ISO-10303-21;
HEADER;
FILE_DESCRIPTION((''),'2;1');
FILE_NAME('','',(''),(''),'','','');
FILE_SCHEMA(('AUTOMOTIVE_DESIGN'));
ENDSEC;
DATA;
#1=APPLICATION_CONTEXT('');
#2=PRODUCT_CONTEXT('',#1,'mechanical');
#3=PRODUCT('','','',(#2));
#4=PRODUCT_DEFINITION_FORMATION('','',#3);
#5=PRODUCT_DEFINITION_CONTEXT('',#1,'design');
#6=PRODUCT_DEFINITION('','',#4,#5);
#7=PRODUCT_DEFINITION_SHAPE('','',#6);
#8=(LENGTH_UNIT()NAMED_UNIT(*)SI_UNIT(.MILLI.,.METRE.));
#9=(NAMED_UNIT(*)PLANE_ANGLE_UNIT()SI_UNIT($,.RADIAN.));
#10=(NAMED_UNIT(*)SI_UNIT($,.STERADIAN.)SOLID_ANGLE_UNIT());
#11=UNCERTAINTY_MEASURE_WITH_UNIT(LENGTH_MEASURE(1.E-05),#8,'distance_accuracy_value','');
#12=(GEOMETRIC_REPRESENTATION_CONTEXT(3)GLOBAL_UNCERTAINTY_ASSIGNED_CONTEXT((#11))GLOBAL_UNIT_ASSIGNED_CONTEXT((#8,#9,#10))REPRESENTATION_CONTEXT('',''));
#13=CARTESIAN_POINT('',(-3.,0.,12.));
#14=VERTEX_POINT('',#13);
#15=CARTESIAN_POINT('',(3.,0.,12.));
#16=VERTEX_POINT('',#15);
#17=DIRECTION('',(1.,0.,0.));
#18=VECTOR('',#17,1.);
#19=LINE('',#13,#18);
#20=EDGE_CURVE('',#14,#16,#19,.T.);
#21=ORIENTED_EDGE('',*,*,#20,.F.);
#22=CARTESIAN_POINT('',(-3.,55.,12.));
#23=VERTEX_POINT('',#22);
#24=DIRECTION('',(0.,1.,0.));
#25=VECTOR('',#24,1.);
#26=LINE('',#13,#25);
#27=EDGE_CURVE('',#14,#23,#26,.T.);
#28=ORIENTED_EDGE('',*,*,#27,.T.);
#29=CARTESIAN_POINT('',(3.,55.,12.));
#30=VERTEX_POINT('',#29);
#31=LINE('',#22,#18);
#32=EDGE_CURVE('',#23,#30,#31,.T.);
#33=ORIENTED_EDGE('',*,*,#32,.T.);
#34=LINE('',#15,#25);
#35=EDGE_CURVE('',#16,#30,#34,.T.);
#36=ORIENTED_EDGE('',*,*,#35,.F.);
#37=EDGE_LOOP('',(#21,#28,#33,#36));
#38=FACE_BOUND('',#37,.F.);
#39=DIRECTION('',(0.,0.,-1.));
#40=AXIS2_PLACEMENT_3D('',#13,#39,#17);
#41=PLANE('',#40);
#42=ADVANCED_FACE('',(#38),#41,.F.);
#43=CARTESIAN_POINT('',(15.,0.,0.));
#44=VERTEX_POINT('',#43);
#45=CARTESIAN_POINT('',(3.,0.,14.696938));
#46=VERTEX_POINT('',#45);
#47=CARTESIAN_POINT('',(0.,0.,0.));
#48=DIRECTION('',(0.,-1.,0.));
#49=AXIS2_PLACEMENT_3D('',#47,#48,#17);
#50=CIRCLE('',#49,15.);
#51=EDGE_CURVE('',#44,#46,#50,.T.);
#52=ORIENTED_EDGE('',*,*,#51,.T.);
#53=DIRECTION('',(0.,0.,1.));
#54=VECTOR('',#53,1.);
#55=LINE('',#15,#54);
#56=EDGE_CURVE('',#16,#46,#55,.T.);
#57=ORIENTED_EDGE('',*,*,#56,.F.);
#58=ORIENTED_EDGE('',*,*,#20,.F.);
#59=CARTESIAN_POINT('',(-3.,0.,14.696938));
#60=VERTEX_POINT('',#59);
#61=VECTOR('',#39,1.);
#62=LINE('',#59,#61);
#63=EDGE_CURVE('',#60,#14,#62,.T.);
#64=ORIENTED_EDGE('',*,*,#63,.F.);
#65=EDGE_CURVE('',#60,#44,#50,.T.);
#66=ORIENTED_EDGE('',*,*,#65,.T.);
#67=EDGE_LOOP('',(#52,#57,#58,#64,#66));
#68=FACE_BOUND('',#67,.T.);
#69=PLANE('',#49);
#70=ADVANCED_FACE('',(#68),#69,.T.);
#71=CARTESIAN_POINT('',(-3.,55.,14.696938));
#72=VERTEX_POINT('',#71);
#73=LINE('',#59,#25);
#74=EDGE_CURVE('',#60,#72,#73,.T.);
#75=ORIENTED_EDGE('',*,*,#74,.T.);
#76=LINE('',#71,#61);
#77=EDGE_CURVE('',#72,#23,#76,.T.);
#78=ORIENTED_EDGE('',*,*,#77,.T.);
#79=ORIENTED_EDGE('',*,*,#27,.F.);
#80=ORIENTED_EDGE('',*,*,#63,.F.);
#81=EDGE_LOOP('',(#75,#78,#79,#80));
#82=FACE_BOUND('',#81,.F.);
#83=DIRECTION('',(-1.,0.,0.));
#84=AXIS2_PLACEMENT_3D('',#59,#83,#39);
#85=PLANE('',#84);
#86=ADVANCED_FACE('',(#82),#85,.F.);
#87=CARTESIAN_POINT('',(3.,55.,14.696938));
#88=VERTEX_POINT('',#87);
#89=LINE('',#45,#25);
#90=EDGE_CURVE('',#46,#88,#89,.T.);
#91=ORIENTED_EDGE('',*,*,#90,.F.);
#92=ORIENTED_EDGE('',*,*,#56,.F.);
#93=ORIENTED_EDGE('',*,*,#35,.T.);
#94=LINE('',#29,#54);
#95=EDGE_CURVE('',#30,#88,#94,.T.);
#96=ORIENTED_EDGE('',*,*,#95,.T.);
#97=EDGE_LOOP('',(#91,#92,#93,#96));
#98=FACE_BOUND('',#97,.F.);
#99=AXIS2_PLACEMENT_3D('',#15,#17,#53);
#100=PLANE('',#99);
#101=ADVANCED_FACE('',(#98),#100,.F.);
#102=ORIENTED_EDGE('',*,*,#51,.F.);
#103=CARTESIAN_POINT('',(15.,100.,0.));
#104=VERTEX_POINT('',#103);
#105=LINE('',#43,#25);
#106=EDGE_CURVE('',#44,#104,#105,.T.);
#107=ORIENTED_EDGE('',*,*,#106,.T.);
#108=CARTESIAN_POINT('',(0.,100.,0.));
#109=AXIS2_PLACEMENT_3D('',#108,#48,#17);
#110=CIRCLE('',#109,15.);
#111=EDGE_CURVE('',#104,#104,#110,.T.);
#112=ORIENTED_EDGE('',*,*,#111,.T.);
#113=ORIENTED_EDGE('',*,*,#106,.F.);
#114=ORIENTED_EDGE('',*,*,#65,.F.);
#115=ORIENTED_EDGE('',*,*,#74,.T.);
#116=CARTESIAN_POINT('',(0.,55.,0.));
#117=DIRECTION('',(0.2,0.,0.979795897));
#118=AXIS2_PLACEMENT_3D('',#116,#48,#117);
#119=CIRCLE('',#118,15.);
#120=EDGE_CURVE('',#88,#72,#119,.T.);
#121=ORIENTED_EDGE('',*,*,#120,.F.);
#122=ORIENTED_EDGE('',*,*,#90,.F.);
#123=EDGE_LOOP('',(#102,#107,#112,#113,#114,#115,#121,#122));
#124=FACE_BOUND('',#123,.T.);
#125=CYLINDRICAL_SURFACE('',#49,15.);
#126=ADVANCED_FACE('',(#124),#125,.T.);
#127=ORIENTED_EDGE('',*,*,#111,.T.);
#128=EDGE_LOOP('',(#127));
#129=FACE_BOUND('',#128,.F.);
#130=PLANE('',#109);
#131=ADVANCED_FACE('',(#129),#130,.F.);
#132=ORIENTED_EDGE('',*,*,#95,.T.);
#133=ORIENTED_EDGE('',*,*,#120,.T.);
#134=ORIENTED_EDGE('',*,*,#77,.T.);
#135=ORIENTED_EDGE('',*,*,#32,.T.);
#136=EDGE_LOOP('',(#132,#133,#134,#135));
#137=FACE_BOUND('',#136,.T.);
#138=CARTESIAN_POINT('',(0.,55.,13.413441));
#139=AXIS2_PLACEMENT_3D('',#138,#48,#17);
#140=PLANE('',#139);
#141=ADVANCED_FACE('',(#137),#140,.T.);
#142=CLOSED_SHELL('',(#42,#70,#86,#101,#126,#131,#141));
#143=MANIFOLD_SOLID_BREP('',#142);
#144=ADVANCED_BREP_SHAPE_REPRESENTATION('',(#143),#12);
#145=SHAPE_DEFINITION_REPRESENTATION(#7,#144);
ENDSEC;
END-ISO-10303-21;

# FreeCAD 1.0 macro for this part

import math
import FreeCAD as App
import Part
import Sketcher
Q = App.Units.Quantity

doc = App.newDocument("Part")
params = doc.addObject("Spreadsheet::Sheet", "Params")
for row, (alias, value) in enumerate([
    ("sketch1_diameter", "30 mm"),
    ("pad1_length", "100 mm"),
    ("sketch2_radius", "15 mm"),
    ("sketch2_width", "6 mm"),
    ("pocket1_length", "55 mm"),
], start=1):
    params.set(f"A{row}", alias)
    params.set(f"B{row}", "=" + value)
    params.setAlias(f"B{row}", alias)

body = doc.addObject("PartDesign::Body", "Body")

sketch1 = body.newObject("Sketcher::SketchObject", "Sketch")
sketch1.AttachmentSupport = (doc.getObject("XZ_Plane"), [""])
sketch1.MapMode = "FlatFace"
sketch1.addGeometry(Part.Circle(App.Vector(0, 0, 0), App.Vector(0, 0, 1), 15), False)
sketch1.addConstraint(Sketcher.Constraint("Coincident", 0, 3, -1, 1))
sketch1.addConstraint(Sketcher.Constraint("Diameter", 0, Q("30 mm")))
sketch1.setExpression("Constraints[1]", "Params.sketch1_diameter")
pad1 = body.newObject("PartDesign::Pad", "Pad")
pad1.Profile = sketch1
pad1.setExpression("Length", "Params.pad1_length")
pad1.Reversed = True

sketch2 = body.newObject("Sketcher::SketchObject", "Sketch001")
sketch2.AttachmentSupport = (doc.getObject("XZ_Plane"), [""])
sketch2.MapMode = "FlatFace"
sketch2.addGeometry(Part.LineSegment(App.Vector(3, 12, 0), App.Vector(3, 14.7, 0)), False)
sketch2.addGeometry(Part.ArcOfCircle(Part.Circle(App.Vector(0, 0, 0), App.Vector(0, 0, 1), 15), math.radians(78), math.radians(102)), False)
sketch2.addGeometry(Part.LineSegment(App.Vector(-3, 14.7, 0), App.Vector(-3, 12, 0)), False)
sketch2.addGeometry(Part.LineSegment(App.Vector(-3, 12, 0), App.Vector(3, 12, 0)), False)
sketch2.addConstraint(Sketcher.Constraint("Coincident", 0, 2, 1, 1))
sketch2.addConstraint(Sketcher.Constraint("Coincident", 1, 2, 2, 1))
sketch2.addConstraint(Sketcher.Constraint("Coincident", 2, 2, 3, 1))
sketch2.addConstraint(Sketcher.Constraint("Coincident", 3, 2, 0, 1))
sketch2.addConstraint(Sketcher.Constraint("Vertical", 0))
sketch2.addConstraint(Sketcher.Constraint("Vertical", 2))
sketch2.addConstraint(Sketcher.Constraint("Horizontal", 3))
sketch2.addConstraint(Sketcher.Constraint("Coincident", 1, 3, -1, 1))
sketch2.addConstraint(Sketcher.Constraint("Horizontal", 0, 2, 1, 2))
sketch2.addConstraint(Sketcher.Constraint("Radius", 1, Q("15 mm")))
sketch2.addConstraint(Sketcher.Constraint("DistanceX", 3, 1, 3, 2, Q("6 mm")))
sketch2.addConstraint(Sketcher.Constraint("DistanceY", -1, 1, 2, 2, Q("12 mm")))
sketch2.setExpression("Constraints[9]", "Params.sketch2_radius")
sketch2.setExpression("Constraints[10]", "Params.sketch2_width")
pocket1 = body.newObject("PartDesign::Pocket", "Pocket")
pocket1.Profile = sketch2
pocket1.setExpression("Length", "Params.pocket1_length")

doc.recompute()
